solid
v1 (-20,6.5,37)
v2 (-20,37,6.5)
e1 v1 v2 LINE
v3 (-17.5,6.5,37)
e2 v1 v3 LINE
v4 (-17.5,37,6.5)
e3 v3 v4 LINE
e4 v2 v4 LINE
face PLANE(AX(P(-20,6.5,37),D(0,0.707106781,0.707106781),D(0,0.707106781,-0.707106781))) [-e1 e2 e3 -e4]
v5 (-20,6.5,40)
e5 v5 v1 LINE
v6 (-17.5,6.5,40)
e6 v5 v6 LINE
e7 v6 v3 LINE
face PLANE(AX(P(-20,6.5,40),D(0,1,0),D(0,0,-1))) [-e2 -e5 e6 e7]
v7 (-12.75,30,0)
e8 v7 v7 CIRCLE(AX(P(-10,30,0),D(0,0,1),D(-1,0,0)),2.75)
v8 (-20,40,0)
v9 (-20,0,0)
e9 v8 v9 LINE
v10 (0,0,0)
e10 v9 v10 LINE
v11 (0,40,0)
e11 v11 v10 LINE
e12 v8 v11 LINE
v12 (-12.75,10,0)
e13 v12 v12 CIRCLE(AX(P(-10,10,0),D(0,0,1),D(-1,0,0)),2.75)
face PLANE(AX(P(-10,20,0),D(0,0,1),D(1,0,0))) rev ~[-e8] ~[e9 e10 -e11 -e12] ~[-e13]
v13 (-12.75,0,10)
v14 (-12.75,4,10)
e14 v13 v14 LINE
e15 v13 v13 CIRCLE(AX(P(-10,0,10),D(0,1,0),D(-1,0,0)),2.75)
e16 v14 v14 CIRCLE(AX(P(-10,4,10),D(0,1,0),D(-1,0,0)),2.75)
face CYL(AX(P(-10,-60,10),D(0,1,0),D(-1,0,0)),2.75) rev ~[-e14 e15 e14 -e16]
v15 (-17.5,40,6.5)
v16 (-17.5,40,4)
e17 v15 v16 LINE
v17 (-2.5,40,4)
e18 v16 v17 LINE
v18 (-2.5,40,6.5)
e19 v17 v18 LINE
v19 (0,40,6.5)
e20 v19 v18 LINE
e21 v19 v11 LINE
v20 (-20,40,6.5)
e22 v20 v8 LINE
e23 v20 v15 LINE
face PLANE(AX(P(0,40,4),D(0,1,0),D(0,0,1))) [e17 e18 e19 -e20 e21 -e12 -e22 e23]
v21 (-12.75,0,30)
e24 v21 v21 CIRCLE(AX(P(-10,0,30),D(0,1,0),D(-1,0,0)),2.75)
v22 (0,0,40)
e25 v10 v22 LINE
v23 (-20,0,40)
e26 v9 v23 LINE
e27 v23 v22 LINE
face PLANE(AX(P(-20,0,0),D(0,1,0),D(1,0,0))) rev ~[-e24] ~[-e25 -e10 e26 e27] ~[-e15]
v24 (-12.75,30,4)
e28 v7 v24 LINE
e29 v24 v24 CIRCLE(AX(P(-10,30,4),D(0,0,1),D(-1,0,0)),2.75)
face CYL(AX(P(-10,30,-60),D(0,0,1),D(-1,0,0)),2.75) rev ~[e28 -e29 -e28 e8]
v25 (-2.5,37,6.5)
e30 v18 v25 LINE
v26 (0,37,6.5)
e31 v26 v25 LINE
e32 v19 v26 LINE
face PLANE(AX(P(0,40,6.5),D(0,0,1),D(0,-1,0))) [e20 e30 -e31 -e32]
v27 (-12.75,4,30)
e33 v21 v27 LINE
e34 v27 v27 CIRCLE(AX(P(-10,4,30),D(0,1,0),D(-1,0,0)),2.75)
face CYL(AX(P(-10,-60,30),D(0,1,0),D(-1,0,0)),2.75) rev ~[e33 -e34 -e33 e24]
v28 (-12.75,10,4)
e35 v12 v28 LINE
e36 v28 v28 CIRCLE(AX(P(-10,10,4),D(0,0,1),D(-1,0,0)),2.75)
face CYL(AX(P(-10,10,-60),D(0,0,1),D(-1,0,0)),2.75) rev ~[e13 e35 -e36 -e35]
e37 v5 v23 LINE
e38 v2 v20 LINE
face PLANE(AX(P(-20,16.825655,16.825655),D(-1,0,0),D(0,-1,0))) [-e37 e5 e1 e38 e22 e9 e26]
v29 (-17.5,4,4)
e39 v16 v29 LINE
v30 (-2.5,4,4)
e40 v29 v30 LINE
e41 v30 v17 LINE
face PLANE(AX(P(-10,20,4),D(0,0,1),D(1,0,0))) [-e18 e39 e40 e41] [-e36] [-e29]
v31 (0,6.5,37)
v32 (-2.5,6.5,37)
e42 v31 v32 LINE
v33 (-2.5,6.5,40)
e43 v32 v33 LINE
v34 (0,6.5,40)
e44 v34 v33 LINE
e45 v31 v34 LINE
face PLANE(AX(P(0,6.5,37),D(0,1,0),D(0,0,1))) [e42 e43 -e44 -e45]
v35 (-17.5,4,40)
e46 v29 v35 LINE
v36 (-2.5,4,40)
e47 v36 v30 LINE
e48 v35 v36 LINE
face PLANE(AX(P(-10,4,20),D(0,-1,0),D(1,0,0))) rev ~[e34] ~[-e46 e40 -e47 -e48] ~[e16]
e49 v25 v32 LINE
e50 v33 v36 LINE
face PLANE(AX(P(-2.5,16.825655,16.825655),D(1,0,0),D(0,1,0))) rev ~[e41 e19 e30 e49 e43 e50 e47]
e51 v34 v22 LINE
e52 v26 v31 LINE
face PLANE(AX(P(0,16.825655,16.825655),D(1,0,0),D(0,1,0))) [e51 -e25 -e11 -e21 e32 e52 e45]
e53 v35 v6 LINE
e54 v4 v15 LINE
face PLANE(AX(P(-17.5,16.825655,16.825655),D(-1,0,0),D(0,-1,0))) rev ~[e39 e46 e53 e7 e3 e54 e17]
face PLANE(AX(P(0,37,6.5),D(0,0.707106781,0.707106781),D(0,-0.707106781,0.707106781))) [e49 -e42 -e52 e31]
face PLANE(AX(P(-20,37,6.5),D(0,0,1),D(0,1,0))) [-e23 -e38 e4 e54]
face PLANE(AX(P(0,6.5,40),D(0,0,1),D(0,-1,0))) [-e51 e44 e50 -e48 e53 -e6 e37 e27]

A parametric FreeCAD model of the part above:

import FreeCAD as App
import Part
import Sketcher
Q = App.Units.Quantity


def add_polygon(sketch, points):
    """Adds a closed chain of lines whose ends are joined by coincident constraints."""
    first, n = sketch.GeometryCount, len(points)
    for a, b in zip(points, points[1:] + points[:1]):
        sketch.addGeometry(Part.LineSegment(App.Vector(*a, 0), App.Vector(*b, 0)), False)
    for i in range(n):
        sketch.addConstraint(Sketcher.Constraint("Coincident", first + i, 2, first + (i + 1) % n, 1))

doc = App.newDocument("Part")
body = doc.addObject("PartDesign::Body", "Body")

# Sketch on XY plane
sketch1 = body.newObject("Sketcher::SketchObject", "Sketch")
sketch1.AttachmentSupport = (doc.getObject("XY_Plane"), [""])
sketch1.MapMode = "FlatFace"
add_polygon(sketch1, [(-20, 40), (-20, 0), (0, 0), (0, 40)])  # lines 0-3
sketch1.addConstraint([
    Sketcher.Constraint("Vertical", 0),
    Sketcher.Constraint("Horizontal", 1),
    Sketcher.Constraint("Vertical", 2),
    Sketcher.Constraint("Horizontal", 3),
    Sketcher.Constraint("Coincident", 1, 2, -1, 1),
    Sketcher.Constraint("DistanceX", 1, 1, 1, 2, Q("20 mm")),
    Sketcher.Constraint("DistanceY", 0, 2, 0, 1, Q("40 mm")),
])
pad1 = body.newObject("PartDesign::Pad", "Pad")
pad1.Profile = sketch1
pad1.Length = 4

# Sketch on XZ plane
sketch2 = body.newObject("Sketcher::SketchObject", "Sketch001")
sketch2.AttachmentSupport = (doc.getObject("XZ_Plane"), [""])
sketch2.MapMode = "FlatFace"
add_polygon(sketch2, [(-20, 40), (-20, 0), (0, 0), (0, 40)])  # lines 0-3
sketch2.addConstraint([
    Sketcher.Constraint("Vertical", 0),
    Sketcher.Constraint("Horizontal", 1),
    Sketcher.Constraint("Vertical", 2),
    Sketcher.Constraint("Horizontal", 3),
    Sketcher.Constraint("Coincident", 1, 2, -1, 1),
    Sketcher.Constraint("DistanceX", 1, 1, 1, 2, Q("20 mm")),
    Sketcher.Constraint("DistanceY", 0, 2, 0, 1, Q("40 mm")),
])
pad2 = body.newObject("PartDesign::Pad", "Pad001")
pad2.Profile = sketch2
pad2.Length = 4
pad2.Reversed = True

# Sketch on YZ plane
sketch3 = body.newObject("Sketcher::SketchObject", "Sketch002")
sketch3.AttachmentSupport = (doc.getObject("YZ_Plane"), [""])
sketch3.MapMode = "FlatFace"
sketch3.AttachmentOffset = App.Placement(App.Vector(0, 0, -20), App.Rotation())
add_polygon(sketch3, [(4, 4), (4, 40), (6.5, 40), (6.5, 37), (37, 6.5), (40, 6.5), (40, 4)])  # lines 0-6
sketch3.addConstraint([
    Sketcher.Constraint("Vertical", 0),
    Sketcher.Constraint("Horizontal", 1),
    Sketcher.Constraint("Vertical", 2),
    Sketcher.Constraint("Horizontal", 4),
    Sketcher.Constraint("Vertical", 5),
    Sketcher.Constraint("Horizontal", 6),
    Sketcher.Constraint("Equal", 6, 0),
    Sketcher.Constraint("Equal", 4, 2),
    Sketcher.Constraint("Equal", 1, 5),
    Sketcher.Constraint("DistanceX", 4, 1, 4, 2, Q("3 mm")),
    Sketcher.Constraint("DistanceX", 6, 2, 6, 1, Q("36 mm")),
    Sketcher.Constraint("DistanceX", 1, 1, 1, 2, Q("2.5 mm")),
    Sketcher.Constraint("DistanceX", -1, 1, 0, 2, Q("4 mm")),
    Sketcher.Constraint("DistanceY", -1, 1, 0, 2, Q("40 mm")),
])
pad3 = body.newObject("PartDesign::Pad", "Pad002")
pad3.Profile = sketch3
pad3.Length = 2.5

# Sketch on YZ plane
sketch4 = body.newObject("Sketcher::SketchObject", "Sketch003")
sketch4.AttachmentSupport = (doc.getObject("YZ_Plane"), [""])
sketch4.MapMode = "FlatFace"
add_polygon(sketch4, [(4, 4), (40, 4), (40, 6.5), (37, 6.5), (6.5, 37), (6.5, 40), (4, 40)])  # lines 0-6
sketch4.addConstraint([
    Sketcher.Constraint("Horizontal", 0),
    Sketcher.Constraint("Vertical", 1),
    Sketcher.Constraint("Horizontal", 2),
    Sketcher.Constraint("Vertical", 4),
    Sketcher.Constraint("Horizontal", 5),
    Sketcher.Constraint("Vertical", 6),
    Sketcher.Constraint("Equal", 5, 1),
    Sketcher.Constraint("Equal", 2, 4),
    Sketcher.Constraint("Equal", 0, 6),
    Sketcher.Constraint("DistanceX", 0, 1, 0, 2, Q("36 mm")),
    Sketcher.Constraint("DistanceX", 2, 2, 2, 1, Q("3 mm")),
    Sketcher.Constraint("DistanceX", 5, 2, 5, 1, Q("2.5 mm")),
    Sketcher.Constraint("DistanceX", -1, 1, 0, 2, Q("40 mm")),
    Sketcher.Constraint("DistanceY", -1, 1, 0, 2, Q("4 mm")),
])
pad4 = body.newObject("PartDesign::Pad", "Pad003")
pad4.Profile = sketch4
pad4.Length = 2.5
pad4.Reversed = True

# Sketch on XZ plane
sketch5 = body.newObject("Sketcher::SketchObject", "Sketch004")
sketch5.AttachmentSupport = (doc.getObject("XZ_Plane"), [""])
sketch5.MapMode = "FlatFace"
sketch5.addGeometry([
    Part.Circle(App.Vector(-10, 30, 0), App.Vector(0, 0, 1), 2.8),
    Part.Circle(App.Vector(-10, 10, 0), App.Vector(0, 0, 1), 2.8),
], False)
sketch5.addConstraint([
    Sketcher.Constraint("Equal", 0, 1),
    Sketcher.Constraint("Vertical", 0, 3, 1, 3),
    Sketcher.Constraint("Diameter", 0, Q("5.5 mm")),
    Sketcher.Constraint("DistanceX", 0, 3, -1, 1, Q("10 mm")),
    Sketcher.Constraint("DistanceY", -1, 1, 0, 3, Q("30 mm")),
    Sketcher.Constraint("DistanceY", -1, 1, 1, 3, Q("10 mm")),
])
doc.recompute()
hole = body.newObject("PartDesign::Hole", "Hole")
hole.Profile = sketch5
hole.ThreadType = "None"
hole.Diameter = 5.5
hole.DepthType = "ThroughAll"

# Sketch on XY plane
sketch6 = body.newObject("Sketcher::SketchObject", "Sketch005")
sketch6.AttachmentSupport = (doc.getObject("XY_Plane"), [""])
sketch6.MapMode = "FlatFace"
sketch6.addGeometry([
    Part.Circle(App.Vector(-10, 30, 0), App.Vector(0, 0, 1), 2.8),
    Part.Circle(App.Vector(-10, 10, 0), App.Vector(0, 0, 1), 2.8),
], False)
sketch6.addConstraint([
    Sketcher.Constraint("Equal", 0, 1),
    Sketcher.Constraint("Vertical", 0, 3, 1, 3),
    Sketcher.Constraint("Diameter", 0, Q("5.5 mm")),
    Sketcher.Constraint("DistanceX", 0, 3, -1, 1, Q("10 mm")),
    Sketcher.Constraint("DistanceY", -1, 1, 0, 3, Q("30 mm")),
    Sketcher.Constraint("DistanceY", -1, 1, 1, 3, Q("10 mm")),
])
doc.recompute()
hole2 = body.newObject("PartDesign::Hole", "Hole001")
hole2.Profile = sketch6
hole2.ThreadType = "None"
hole2.Diameter = 5.5
hole2.DepthType = "ThroughAll"
hole2.Reversed = True

doc.recompute()
